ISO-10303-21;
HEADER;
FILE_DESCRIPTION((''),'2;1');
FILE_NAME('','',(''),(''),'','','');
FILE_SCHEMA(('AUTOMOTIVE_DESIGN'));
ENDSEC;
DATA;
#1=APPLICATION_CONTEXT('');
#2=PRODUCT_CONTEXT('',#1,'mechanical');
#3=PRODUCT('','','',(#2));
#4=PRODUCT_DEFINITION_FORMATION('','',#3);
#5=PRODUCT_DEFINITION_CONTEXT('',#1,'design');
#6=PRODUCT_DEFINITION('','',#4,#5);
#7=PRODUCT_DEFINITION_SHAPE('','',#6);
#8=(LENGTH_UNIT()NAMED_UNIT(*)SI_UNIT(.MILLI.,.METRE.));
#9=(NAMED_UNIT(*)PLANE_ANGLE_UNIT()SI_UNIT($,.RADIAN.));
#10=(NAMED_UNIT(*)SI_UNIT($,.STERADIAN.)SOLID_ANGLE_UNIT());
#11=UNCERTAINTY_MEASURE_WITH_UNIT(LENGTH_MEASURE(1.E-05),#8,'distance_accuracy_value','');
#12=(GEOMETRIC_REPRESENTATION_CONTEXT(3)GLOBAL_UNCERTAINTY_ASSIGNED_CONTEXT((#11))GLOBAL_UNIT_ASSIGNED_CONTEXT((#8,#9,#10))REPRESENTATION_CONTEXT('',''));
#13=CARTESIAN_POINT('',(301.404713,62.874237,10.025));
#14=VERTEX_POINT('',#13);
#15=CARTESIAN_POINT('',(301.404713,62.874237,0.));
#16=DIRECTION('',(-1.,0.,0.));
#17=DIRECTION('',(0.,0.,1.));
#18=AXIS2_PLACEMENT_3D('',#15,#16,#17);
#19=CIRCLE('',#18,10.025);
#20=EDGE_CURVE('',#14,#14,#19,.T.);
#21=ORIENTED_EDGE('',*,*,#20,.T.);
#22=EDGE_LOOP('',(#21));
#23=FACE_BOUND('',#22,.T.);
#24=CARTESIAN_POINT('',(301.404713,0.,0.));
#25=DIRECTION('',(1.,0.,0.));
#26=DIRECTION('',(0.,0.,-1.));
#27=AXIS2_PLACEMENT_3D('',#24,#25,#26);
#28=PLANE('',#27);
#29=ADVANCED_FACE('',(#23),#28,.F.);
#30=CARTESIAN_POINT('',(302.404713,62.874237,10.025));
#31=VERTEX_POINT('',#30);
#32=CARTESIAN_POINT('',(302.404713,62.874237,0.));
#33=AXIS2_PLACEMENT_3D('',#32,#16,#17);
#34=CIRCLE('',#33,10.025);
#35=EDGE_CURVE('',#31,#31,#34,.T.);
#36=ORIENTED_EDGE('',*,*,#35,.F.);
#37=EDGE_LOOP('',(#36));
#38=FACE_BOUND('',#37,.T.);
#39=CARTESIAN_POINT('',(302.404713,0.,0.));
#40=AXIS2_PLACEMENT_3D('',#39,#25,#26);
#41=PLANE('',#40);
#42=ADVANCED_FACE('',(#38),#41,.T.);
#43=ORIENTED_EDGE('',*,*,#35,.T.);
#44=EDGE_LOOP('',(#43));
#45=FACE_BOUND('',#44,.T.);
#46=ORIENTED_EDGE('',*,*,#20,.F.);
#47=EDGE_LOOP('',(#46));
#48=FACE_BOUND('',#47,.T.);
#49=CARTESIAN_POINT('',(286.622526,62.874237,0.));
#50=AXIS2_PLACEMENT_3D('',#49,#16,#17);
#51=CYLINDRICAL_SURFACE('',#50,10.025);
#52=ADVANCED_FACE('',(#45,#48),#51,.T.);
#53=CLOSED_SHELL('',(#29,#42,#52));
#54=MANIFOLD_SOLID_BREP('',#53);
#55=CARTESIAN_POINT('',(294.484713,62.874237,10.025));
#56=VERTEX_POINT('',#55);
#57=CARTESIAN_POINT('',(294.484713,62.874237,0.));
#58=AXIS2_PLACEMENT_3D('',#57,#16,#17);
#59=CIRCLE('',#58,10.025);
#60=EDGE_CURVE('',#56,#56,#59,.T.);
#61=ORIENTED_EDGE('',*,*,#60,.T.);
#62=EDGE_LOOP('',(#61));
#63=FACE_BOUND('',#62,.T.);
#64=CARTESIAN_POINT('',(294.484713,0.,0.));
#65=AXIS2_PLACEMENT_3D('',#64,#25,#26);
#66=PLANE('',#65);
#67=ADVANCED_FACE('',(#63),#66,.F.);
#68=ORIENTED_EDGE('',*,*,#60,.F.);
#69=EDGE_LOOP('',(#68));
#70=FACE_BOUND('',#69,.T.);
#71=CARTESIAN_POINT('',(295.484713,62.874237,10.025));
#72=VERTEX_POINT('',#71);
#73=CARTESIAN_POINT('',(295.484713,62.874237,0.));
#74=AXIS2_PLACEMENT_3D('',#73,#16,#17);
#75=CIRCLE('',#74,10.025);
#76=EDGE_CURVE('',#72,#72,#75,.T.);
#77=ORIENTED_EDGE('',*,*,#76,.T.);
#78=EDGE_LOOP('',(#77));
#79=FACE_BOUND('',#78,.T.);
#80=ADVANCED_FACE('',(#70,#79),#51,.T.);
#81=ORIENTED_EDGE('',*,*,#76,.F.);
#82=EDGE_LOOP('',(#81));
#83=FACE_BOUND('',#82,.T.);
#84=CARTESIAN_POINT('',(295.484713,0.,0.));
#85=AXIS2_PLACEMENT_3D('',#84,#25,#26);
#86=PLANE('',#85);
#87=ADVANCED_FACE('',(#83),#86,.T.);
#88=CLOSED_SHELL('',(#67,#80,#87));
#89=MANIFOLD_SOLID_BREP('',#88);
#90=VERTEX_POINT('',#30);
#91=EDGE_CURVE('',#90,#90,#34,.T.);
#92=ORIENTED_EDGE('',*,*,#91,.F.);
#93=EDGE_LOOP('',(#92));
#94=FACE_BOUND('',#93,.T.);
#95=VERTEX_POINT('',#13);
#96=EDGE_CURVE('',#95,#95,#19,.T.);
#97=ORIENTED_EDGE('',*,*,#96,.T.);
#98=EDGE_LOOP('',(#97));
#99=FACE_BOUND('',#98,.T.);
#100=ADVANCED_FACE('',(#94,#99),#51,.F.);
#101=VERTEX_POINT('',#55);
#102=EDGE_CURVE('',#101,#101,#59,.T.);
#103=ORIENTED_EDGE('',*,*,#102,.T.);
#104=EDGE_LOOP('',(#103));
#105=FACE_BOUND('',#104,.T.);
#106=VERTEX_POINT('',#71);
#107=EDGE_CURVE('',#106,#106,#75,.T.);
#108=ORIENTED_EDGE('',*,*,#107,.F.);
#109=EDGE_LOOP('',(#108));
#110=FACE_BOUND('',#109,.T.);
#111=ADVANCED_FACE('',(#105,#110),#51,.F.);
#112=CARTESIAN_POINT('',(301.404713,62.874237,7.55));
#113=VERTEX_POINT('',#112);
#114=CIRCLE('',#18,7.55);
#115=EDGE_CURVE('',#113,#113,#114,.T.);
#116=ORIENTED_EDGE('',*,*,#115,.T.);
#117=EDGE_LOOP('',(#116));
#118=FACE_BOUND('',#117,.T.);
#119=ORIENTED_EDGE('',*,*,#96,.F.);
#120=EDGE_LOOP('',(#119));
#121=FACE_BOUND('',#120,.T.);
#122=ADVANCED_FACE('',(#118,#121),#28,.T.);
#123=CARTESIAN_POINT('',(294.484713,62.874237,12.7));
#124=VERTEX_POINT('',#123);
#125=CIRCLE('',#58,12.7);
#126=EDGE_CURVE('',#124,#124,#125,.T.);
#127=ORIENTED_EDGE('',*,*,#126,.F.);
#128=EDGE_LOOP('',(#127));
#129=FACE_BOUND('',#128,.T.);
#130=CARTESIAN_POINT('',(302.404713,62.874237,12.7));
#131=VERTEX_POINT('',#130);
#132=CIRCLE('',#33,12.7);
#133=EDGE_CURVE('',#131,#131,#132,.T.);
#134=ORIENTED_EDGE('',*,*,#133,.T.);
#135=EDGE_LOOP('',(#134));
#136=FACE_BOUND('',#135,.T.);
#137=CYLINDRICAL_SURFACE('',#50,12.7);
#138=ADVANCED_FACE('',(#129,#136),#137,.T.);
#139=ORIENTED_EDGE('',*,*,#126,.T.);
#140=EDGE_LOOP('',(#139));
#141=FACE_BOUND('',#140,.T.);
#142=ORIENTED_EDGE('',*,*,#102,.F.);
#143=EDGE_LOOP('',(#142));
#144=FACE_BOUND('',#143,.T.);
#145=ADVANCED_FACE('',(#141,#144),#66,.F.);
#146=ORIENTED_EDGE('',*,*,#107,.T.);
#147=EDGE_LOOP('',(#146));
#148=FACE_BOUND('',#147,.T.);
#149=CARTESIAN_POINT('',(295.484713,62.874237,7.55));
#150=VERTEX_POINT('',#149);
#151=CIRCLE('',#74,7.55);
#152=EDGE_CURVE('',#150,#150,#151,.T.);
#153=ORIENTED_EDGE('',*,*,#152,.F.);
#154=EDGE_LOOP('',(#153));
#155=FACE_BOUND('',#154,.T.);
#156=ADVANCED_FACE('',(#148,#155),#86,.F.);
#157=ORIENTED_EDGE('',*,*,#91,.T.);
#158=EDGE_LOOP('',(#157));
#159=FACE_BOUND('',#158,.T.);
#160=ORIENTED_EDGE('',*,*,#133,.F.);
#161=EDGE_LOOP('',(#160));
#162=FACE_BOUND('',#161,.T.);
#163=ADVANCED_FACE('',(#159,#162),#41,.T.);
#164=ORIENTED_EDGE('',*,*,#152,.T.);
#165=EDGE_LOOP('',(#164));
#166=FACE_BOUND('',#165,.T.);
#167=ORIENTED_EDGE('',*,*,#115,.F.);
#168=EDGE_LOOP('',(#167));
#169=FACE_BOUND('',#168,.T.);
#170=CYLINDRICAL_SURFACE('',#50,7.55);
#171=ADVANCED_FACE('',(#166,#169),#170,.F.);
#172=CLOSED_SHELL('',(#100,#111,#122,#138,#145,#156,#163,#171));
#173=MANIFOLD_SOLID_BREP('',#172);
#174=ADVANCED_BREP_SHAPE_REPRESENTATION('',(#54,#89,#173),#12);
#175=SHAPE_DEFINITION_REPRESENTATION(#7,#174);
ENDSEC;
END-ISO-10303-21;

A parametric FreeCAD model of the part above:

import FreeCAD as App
import Part
import Sketcher

doc = App.newDocument("Part")
params = doc.addObject("Spreadsheet::Sheet", "Params")
for row, (alias, value) in enumerate([
    ("sketch1_width", "1 mm"),
    ("sketch1_width2", "7.92 mm"),
    ("revolution_angle", "360 deg"),
    ("sketch2_width", "1 mm"),
    ("revolution2_angle", "360 deg"),
    ("sketch3_width", "1 mm"),
    ("revolution3_angle", "360 deg"),
], start=1):
    params.set(f"A{row}", alias)
    params.set(f"B{row}", "=" + value)
    params.setAlias(f"B{row}", alias)

body = doc.addObject("PartDesign::Body", "Body")

sketch1 = body.newObject("Sketcher::SketchObject", "Sketch")
sketch1.AttachmentSupport = (doc.getObject("XY_Plane"), [""])
sketch1.MapMode = "FlatFace"
sketch1.addGeometry([
    Part.LineSegment(App.Vector(302.404713, 75.574237, 0), App.Vector(294.484713, 75.574237, 0)),
    Part.LineSegment(App.Vector(294.484713, 75.574237, 0), App.Vector(294.484713, 72.899237, 0)),
    Part.LineSegment(App.Vector(294.484713, 72.899237, 0), App.Vector(295.484713, 72.899237, 0)),
    Part.LineSegment(App.Vector(295.484713, 72.899237, 0), App.Vector(295.484713, 70.424237, 0)),
    Part.LineSegment(App.Vector(295.484713, 70.424237, 0), App.Vector(301.404713, 70.424237, 0)),
    Part.LineSegment(App.Vector(301.404713, 70.424237, 0), App.Vector(301.404713, 72.899237, 0)),
    Part.LineSegment(App.Vector(301.404713, 72.899237, 0), App.Vector(302.404713, 72.899237, 0)),
    Part.LineSegment(App.Vector(302.404713, 72.899237, 0), App.Vector(302.404713, 75.574237, 0)),
], False)
sketch1.addGeometry(Part.LineSegment(App.Vector(294.484713, 62.874237, 0), App.Vector(302.404713, 62.874237, 0)), True)
sketch1.addConstraint([
    Sketcher.Constraint("Coincident", 0, 2, 1, 1),
    Sketcher.Constraint("Coincident", 1, 2, 2, 1),
    Sketcher.Constraint("Coincident", 2, 2, 3, 1),
    Sketcher.Constraint("Coincident", 3, 2, 4, 1),
    Sketcher.Constraint("Coincident", 4, 2, 5, 1),
    Sketcher.Constraint("Coincident", 5, 2, 6, 1),
    Sketcher.Constraint("Coincident", 6, 2, 7, 1),
    Sketcher.Constraint("Coincident", 7, 2, 0, 1),
    Sketcher.Constraint("Horizontal", 0),
    Sketcher.Constraint("Vertical", 1),
    Sketcher.Constraint("Horizontal", 2),
    Sketcher.Constraint("Vertical", 3),
    Sketcher.Constraint("Horizontal", 4),
    Sketcher.Constraint("Vertical", 5),
    Sketcher.Constraint("Horizontal", 6),
    Sketcher.Constraint("Vertical", 7),
    Sketcher.Constraint("Horizontal", 8),
    Sketcher.Constraint("Horizontal", 2, 2, 5, 2),
    Sketcher.Constraint("Vertical", 1, 2, 8, 1),
    Sketcher.Constraint("Vertical", 7, 2, 8, 2),
    Sketcher.Constraint("Equal", 2, 6),
    Sketcher.Constraint("DistanceX", 2, 1, 2, 2, 1.0),
    Sketcher.Constraint("DistanceX", 0, 2, 0, 1, 7.92),
    Sketcher.Constraint("DistanceY", 1, 2, 1, 1, 2.675),
    Sketcher.Constraint("DistanceY", 3, 2, 3, 1, 2.475),
    Sketcher.Constraint("DistanceY", 8, 1, 3, 2, 7.55),
    Sketcher.Constraint("DistanceX", -1, 1, 0, 2, 294.484713),
    Sketcher.Constraint("DistanceY", -1, 1, 0, 2, 75.574237),
])
sketch1.setExpression("Constraints[21]", "Params.sketch1_width")
sketch1.setExpression("Constraints[22]", "Params.sketch1_width2")
revolution = body.newObject("PartDesign::Revolution", "Revolution")
revolution.Profile = sketch1
revolution.ReferenceAxis = (sketch1, ["Axis0"])
revolution.setExpression("Angle", "Params.revolution_angle")
body2 = doc.addObject("PartDesign::Body", "Body001")

sketch2 = body2.newObject("Sketcher::SketchObject", "Sketch001")
sketch2.AttachmentSupport = (doc.getObject("XY_Plane001"), [""])
sketch2.MapMode = "FlatFace"
sketch2.addGeometry([
    Part.LineSegment(App.Vector(295.484713, 72.899237, 0), App.Vector(294.484713, 72.899237, 0)),
    Part.LineSegment(App.Vector(294.484713, 72.899237, 0), App.Vector(294.484713, 62.874237, 0)),
    Part.LineSegment(App.Vector(294.484713, 62.874237, 0), App.Vector(295.484713, 62.874237, 0)),
    Part.LineSegment(App.Vector(295.484713, 62.874237, 0), App.Vector(295.484713, 72.899237, 0)),
], False)
sketch2.addGeometry(Part.LineSegment(App.Vector(294.484713, 62.874237, 0), App.Vector(295.484713, 62.874237, 0)), True)
sketch2.addConstraint([
    Sketcher.Constraint("Coincident", 0, 2, 1, 1),
    Sketcher.Constraint("Coincident", 1, 2, 2, 1),
    Sketcher.Constraint("Coincident", 2, 2, 3, 1),
    Sketcher.Constraint("Coincident", 3, 2, 0, 1),
    Sketcher.Constraint("Horizontal", 0),
    Sketcher.Constraint("Vertical", 1),
    Sketcher.Constraint("Horizontal", 2),
    Sketcher.Constraint("Vertical", 3),
    Sketcher.Constraint("Horizontal", 4),
    Sketcher.Constraint("Coincident", 4, 1, 1, 2),
    Sketcher.Constraint("Vertical", 3, 2, 4, 2),
    Sketcher.Constraint("DistanceX", 0, 2, 0, 1, 1.0),
    Sketcher.Constraint("DistanceY", 1, 2, 1, 1, 10.025),
    Sketcher.Constraint("DistanceX", -1, 1, 0, 2, 294.484713),
    Sketcher.Constraint("DistanceY", -1, 1, 0, 2, 72.899237),
])
sketch2.setExpression("Constraints[11]", "Params.sketch2_width")
revolution2 = body2.newObject("PartDesign::Revolution", "Revolution001")
revolution2.Profile = sketch2
revolution2.ReferenceAxis = (sketch2, ["Axis0"])
revolution2.setExpression("Angle", "Params.revolution2_angle")
body3 = doc.addObject("PartDesign::Body", "Body002")

sketch3 = body3.newObject("Sketcher::SketchObject", "Sketch002")
sketch3.AttachmentSupport = (doc.getObject("XY_Plane002"), [""])
sketch3.MapMode = "FlatFace"
sketch3.addGeometry([
    Part.LineSegment(App.Vector(301.404713, 62.874237, 0), App.Vector(302.404713, 62.874237, 0)),
    Part.LineSegment(App.Vector(302.404713, 62.874237, 0), App.Vector(302.404713, 72.899237, 0)),
    Part.LineSegment(App.Vector(302.404713, 72.899237, 0), App.Vector(301.404713, 72.899237, 0)),
    Part.LineSegment(App.Vector(301.404713, 72.899237, 0), App.Vector(301.404713, 62.874237, 0)),
], False)
sketch3.addGeometry(Part.LineSegment(App.Vector(301.404713, 62.874237, 0), App.Vector(302.404713, 62.874237, 0)), True)
sketch3.addConstraint([
    Sketcher.Constraint("Coincident", 0, 2, 1, 1),
    Sketcher.Constraint("Coincident", 1, 2, 2, 1),
    Sketcher.Constraint("Coincident", 2, 2, 3, 1),
    Sketcher.Constraint("Coincident", 3, 2, 0, 1),
    Sketcher.Constraint("Horizontal", 0),
    Sketcher.Constraint("Vertical", 1),
    Sketcher.Constraint("Horizontal", 2),
    Sketcher.Constraint("Vertical", 3),
    Sketcher.Constraint("Horizontal", 4),
    Sketcher.Constraint("Coincident", 4, 1, 3, 2),
    Sketcher.Constraint("Vertical", 1, 2, 4, 2),
    Sketcher.Constraint("DistanceX", 0, 1, 0, 2, 1.0),
    Sketcher.Constraint("DistanceY", 1, 1, 1, 2, 10.025),
    Sketcher.Constraint("DistanceX", -1, 1, 0, 2, 302.404713),
    Sketcher.Constraint("DistanceY", -1, 1, 0, 2, 62.874237),
])
sketch3.setExpression("Constraints[11]", "Params.sketch3_width")
revolution3 = body3.newObject("PartDesign::Revolution", "Revolution002")
revolution3.Profile = sketch3
revolution3.ReferenceAxis = (sketch3, ["Axis0"])
revolution3.setExpression("Angle", "Params.revolution3_angle")

doc.recompute()
